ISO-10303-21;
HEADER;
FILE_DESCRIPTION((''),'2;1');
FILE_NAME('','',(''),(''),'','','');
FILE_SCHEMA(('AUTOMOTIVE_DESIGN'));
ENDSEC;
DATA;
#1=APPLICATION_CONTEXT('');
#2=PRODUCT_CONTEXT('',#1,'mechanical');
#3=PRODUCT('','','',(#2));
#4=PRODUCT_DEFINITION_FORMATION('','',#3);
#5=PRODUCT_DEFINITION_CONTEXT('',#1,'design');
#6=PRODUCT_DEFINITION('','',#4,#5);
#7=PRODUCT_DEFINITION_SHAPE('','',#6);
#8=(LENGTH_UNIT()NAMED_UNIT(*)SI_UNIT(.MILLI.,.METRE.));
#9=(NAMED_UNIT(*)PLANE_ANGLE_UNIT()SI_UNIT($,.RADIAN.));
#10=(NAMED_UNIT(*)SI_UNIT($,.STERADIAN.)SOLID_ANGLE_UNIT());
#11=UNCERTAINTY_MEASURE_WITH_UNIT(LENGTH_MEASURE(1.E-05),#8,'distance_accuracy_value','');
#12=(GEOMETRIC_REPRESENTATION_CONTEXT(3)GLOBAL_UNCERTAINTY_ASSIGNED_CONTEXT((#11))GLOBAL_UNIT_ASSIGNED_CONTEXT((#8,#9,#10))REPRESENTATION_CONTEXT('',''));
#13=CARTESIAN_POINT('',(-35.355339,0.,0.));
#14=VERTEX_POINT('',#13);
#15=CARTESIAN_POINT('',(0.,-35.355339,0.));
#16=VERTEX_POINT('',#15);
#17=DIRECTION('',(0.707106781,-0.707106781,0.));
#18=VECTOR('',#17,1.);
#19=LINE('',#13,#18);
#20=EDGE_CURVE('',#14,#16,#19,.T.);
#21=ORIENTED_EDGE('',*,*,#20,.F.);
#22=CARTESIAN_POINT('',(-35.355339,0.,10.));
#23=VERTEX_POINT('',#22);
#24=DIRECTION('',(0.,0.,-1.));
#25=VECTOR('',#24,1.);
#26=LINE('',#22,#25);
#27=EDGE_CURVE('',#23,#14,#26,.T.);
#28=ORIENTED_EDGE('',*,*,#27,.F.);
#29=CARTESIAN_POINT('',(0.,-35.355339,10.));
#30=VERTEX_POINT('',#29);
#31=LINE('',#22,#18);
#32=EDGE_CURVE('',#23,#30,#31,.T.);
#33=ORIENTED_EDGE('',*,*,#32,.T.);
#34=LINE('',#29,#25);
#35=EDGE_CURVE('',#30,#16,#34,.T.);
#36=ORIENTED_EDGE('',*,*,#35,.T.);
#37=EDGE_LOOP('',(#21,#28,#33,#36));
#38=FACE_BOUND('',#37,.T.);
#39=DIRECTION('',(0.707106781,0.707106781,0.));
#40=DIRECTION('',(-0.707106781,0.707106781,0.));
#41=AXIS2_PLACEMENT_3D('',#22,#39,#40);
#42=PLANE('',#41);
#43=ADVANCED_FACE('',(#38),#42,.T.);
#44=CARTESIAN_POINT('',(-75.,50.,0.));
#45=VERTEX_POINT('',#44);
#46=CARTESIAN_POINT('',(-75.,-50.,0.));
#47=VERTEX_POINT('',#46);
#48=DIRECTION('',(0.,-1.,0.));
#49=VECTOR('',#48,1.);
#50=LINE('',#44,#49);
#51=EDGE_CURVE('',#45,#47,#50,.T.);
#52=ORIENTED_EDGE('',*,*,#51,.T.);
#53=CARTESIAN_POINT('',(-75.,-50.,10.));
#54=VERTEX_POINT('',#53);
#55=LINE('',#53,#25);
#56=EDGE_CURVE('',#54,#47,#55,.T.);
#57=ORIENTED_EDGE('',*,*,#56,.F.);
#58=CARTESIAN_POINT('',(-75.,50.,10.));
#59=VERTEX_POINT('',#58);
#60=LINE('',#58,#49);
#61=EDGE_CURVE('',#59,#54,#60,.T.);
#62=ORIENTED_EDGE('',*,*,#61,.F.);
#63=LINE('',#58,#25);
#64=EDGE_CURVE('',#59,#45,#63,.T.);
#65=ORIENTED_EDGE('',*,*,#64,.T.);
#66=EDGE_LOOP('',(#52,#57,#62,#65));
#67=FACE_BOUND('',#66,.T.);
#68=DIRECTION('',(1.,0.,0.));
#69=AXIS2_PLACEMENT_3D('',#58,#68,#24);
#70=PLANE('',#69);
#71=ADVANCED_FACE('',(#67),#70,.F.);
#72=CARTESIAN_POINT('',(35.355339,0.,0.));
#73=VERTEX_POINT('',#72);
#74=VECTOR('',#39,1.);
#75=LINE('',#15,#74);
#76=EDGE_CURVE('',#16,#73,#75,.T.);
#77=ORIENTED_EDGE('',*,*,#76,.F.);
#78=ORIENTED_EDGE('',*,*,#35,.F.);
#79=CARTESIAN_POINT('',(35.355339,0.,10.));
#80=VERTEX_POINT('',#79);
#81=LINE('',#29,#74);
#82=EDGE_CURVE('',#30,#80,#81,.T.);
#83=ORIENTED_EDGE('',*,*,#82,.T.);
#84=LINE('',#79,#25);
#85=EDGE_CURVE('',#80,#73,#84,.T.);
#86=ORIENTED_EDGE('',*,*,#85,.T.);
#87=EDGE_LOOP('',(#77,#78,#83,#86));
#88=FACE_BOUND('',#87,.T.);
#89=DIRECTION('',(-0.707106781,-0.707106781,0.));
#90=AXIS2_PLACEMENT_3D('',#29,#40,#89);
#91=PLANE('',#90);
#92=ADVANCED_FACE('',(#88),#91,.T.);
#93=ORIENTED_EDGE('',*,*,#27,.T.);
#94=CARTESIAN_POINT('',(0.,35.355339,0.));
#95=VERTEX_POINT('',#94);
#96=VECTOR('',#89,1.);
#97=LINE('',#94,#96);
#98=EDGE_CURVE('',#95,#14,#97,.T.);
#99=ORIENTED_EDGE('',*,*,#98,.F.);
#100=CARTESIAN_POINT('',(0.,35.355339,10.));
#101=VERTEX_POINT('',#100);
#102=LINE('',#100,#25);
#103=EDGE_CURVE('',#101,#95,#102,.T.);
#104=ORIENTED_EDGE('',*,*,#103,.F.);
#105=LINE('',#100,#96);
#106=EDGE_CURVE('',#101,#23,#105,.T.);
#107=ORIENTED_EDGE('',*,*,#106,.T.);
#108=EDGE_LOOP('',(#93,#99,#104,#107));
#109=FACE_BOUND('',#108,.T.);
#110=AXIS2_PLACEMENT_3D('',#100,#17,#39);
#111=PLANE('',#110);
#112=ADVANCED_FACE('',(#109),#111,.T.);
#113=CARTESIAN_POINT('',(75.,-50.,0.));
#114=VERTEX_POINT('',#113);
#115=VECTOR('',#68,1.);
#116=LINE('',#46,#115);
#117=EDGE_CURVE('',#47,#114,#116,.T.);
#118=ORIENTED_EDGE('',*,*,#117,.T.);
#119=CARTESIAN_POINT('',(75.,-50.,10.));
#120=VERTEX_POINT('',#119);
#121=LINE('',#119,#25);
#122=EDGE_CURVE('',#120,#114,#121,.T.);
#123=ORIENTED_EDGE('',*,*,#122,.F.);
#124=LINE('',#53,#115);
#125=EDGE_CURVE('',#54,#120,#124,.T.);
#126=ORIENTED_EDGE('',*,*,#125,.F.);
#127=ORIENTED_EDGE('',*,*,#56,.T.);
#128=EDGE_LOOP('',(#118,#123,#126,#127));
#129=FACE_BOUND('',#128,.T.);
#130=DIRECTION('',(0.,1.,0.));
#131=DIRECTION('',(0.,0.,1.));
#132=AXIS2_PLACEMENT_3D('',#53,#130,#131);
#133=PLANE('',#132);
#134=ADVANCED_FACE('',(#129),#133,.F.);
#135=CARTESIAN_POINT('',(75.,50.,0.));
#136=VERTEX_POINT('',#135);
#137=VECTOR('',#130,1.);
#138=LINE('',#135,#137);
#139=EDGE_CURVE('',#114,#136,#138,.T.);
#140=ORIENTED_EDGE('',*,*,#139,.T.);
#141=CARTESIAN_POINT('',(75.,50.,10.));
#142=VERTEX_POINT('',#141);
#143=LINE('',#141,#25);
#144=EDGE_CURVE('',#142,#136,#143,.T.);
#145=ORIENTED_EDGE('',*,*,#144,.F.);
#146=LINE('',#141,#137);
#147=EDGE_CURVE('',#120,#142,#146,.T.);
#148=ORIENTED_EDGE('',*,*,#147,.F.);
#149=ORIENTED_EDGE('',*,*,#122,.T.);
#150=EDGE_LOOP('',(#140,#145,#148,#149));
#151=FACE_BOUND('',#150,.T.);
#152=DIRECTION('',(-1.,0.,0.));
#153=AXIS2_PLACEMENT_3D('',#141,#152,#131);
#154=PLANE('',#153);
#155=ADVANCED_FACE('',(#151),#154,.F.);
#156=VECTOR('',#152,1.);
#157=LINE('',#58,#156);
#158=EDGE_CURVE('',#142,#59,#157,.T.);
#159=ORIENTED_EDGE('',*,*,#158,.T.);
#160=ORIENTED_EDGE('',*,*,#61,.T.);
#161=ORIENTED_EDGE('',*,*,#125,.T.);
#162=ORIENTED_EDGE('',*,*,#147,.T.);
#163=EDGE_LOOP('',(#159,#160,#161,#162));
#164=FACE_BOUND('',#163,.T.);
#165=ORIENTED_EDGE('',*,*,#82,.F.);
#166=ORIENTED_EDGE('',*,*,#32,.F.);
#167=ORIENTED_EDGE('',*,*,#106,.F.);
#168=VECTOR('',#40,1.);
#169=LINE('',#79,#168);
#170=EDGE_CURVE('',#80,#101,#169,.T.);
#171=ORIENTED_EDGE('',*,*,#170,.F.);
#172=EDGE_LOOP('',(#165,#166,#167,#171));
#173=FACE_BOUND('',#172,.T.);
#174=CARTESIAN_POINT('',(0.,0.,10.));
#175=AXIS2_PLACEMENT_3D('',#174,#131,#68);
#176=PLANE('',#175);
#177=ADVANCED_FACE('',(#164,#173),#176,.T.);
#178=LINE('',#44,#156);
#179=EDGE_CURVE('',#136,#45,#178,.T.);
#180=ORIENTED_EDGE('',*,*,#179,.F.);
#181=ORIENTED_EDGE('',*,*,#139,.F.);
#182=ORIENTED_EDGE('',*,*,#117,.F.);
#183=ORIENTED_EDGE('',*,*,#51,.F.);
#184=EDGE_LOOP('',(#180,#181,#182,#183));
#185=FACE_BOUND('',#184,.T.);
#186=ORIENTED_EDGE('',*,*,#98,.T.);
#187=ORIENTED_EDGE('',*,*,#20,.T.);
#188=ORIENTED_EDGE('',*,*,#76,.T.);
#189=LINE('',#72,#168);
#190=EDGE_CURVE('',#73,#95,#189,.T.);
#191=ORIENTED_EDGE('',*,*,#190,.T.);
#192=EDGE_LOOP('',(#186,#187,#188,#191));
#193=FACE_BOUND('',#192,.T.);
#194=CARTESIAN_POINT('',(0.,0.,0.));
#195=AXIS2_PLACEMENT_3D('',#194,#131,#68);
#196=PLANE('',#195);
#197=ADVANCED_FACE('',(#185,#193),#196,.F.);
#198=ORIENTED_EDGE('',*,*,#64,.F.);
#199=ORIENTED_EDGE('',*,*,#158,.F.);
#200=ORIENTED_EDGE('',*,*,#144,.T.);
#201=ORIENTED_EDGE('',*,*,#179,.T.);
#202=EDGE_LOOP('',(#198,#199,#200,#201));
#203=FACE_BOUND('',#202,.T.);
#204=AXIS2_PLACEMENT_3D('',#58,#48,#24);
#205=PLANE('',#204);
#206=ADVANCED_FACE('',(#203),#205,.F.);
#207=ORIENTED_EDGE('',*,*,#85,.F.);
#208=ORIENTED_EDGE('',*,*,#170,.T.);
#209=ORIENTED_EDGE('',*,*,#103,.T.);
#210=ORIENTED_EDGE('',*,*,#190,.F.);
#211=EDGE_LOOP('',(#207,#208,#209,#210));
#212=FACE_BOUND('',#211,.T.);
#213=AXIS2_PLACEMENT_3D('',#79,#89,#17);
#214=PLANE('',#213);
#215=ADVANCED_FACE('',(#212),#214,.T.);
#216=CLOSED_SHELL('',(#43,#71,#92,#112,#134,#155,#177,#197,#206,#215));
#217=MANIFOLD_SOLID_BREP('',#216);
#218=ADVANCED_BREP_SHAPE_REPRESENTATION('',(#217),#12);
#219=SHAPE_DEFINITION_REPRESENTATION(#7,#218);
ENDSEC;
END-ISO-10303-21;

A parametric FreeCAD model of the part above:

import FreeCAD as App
import Part
import Sketcher
from FreeCAD import Vector


def add_polygon(sketch, points):
    """Adds a closed chain of lines whose ends are joined by coincident constraints."""
    first, n = sketch.GeometryCount, len(points)
    for a, b in zip(points, points[1:] + points[:1]):
        sketch.addGeometry(Part.LineSegment(App.Vector(*a, 0), App.Vector(*b, 0)), False)
    for i in range(n):
        sketch.addConstraint(Sketcher.Constraint("Coincident", first + i, 2, first + (i + 1) % n, 1))

doc = App.newDocument("Part")
params = doc.addObject("Spreadsheet::Sheet", "Params")
for row, (alias, value) in enumerate([
    ("sketch1_width", "150 mm"),
    ("sketch1_height", "100 mm"),
    ("sketch1_length", "50 mm"),
    ("pad1_length", "10 mm"),
], start=1):
    params.set(f"A{row}", alias)
    params.set(f"B{row}", "=" + value)
    params.setAlias(f"B{row}", alias)

body = doc.addObject("PartDesign::Body", "Body")

sketch1 = body.newObject("Sketcher::SketchObject", "Sketch")
sketch1.AttachmentSupport = (doc.getObject("XY_Plane"), [""])
sketch1.MapMode = "FlatFace"
add_polygon(sketch1, [(-75, 50), (-75, -50), (75, -50), (75, 50)])
add_polygon(sketch1, [(35, 0), (0, -35), (-35, 0), (0, 35)])
sketch1.addConstraint([
    Sketcher.Constraint("Vertical", 0),
    Sketcher.Constraint("Horizontal", 1),
    Sketcher.Constraint("Vertical", 2),
    Sketcher.Constraint("Horizontal", 3),
    Sketcher.Constraint("Symmetric", 0, 2, 2, 2, -1, 1),
    Sketcher.Constraint("Symmetric", 4, 2, 6, 2, -1, 1),
    Sketcher.Constraint("Symmetric", 5, 2, 7, 2, -1, 1),
    Sketcher.Constraint("PointOnObject", 4, 2, -2),
    Sketcher.Constraint("PointOnObject", 5, 2, -1),
    Sketcher.Constraint("Perpendicular", 4, 5),
    Sketcher.Constraint("DistanceX", 1, 1, 1, 2, 150.0),
    Sketcher.Constraint("DistanceY", 0, 2, 0, 1, 100.0),
    Sketcher.Constraint("Distance", 4, 50.0),
])
sketch1.setExpression("Constraints[18]", "Params.sketch1_width")
sketch1.setExpression("Constraints[19]", "Params.sketch1_height")
sketch1.setExpression("Constraints[20]", "Params.sketch1_length")
pad1 = body.newObject("PartDesign::Pad", "Pad")
pad1.Profile = sketch1
pad1.setExpression("Length", "Params.pad1_length")

doc.recompute()
